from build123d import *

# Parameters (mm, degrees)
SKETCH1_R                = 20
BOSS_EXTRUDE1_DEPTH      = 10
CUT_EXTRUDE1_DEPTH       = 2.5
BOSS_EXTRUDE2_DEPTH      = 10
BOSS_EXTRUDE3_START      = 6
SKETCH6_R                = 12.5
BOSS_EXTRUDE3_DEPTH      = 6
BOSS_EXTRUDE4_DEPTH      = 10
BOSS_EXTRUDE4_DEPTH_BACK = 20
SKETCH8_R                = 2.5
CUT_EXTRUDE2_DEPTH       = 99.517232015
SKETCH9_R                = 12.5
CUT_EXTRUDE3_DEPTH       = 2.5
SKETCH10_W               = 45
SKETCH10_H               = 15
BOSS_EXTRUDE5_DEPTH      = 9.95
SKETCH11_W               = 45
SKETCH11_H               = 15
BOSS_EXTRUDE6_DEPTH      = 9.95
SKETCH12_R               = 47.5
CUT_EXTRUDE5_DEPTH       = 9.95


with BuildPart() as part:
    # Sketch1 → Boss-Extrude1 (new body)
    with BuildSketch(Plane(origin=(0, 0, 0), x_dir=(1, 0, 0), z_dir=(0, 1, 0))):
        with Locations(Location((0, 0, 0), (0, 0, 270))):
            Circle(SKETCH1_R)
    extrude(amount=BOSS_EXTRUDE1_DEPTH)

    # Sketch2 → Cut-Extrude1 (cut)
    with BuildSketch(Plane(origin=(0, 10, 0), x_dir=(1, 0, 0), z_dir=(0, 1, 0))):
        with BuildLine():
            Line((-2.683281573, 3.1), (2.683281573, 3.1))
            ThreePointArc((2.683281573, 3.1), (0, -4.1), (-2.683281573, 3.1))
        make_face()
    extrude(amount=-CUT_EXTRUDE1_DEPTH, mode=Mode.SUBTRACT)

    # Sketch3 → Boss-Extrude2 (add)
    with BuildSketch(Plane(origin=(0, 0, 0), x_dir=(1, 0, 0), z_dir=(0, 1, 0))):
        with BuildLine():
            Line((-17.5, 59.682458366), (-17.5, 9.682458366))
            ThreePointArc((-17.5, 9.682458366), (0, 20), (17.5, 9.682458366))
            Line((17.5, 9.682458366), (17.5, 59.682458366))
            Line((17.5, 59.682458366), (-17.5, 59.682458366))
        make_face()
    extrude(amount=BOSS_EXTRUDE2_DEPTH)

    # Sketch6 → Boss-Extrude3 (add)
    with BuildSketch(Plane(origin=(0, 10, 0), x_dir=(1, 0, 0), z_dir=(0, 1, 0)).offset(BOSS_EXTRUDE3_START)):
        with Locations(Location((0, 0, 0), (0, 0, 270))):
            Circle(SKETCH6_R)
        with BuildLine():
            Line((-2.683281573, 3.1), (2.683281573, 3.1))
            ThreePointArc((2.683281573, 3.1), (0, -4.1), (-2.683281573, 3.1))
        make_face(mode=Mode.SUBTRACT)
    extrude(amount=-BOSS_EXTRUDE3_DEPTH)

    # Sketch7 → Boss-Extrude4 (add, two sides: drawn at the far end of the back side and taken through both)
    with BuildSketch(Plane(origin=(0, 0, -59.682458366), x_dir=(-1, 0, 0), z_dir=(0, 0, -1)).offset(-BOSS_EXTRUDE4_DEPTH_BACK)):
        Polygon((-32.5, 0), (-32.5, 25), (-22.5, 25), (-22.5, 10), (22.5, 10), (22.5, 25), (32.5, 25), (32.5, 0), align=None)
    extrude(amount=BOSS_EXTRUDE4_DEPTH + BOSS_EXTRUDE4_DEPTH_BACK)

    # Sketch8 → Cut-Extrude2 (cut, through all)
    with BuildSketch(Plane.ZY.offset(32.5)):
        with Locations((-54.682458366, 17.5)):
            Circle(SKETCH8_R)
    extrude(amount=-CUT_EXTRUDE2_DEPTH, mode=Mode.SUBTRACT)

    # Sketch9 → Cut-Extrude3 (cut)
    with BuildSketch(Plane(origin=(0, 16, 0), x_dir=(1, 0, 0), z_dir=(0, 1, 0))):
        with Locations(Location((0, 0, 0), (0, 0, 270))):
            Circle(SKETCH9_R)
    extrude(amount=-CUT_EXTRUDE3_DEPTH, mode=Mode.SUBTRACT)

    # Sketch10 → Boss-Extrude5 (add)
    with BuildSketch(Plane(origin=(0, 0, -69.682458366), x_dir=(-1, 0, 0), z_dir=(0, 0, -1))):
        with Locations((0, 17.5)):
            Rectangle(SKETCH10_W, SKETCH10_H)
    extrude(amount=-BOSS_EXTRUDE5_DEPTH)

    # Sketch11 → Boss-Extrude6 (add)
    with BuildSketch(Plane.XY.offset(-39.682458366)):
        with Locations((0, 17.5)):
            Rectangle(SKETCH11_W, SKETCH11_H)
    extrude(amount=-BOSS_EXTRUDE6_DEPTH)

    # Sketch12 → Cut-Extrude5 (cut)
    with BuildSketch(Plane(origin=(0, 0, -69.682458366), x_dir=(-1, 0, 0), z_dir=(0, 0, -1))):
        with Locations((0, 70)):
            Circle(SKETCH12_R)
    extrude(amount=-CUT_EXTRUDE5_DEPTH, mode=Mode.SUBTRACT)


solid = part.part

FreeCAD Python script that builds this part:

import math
import FreeCAD as App
import Part
import Sketcher
Q = App.Units.Quantity


def add_polygon(sketch, points):
    """Adds a closed chain of lines whose ends are joined by coincident constraints."""
    first, n = sketch.GeometryCount, len(points)
    for a, b in zip(points, points[1:] + points[:1]):
        sketch.addGeometry(Part.LineSegment(App.Vector(*a, 0), App.Vector(*b, 0)), False)
    for i in range(n):
        sketch.addConstraint(Sketcher.Constraint("Coincident", first + i, 2, first + (i + 1) % n, 1))

doc = App.newDocument("Part")
body = doc.addObject("PartDesign::Body", "Body")

# Sketch on XZ plane
sketch1 = body.newObject("Sketcher::SketchObject", "Sketch")
sketch1.AttachmentSupport = (doc.getObject("XZ_Plane"), [""])
sketch1.MapMode = "FlatFace"
sketch1.addGeometry(Part.Circle(App.Vector(0, 0, 0), App.Vector(0, 0, 1), 20), False)
sketch1.addConstraint(Sketcher.Constraint("Coincident", 0, 3, -1, 1))
sketch1.addConstraint(Sketcher.Constraint("Diameter", 0, Q("40 mm")))
pad1 = body.newObject("PartDesign::Pad", "Pad")
pad1.Profile = sketch1
pad1.Length = 10
pad1.Reversed = True

# Sketch on XZ plane
sketch2 = body.newObject("Sketcher::SketchObject", "Sketch001")
sketch2.AttachmentSupport = (doc.getObject("XZ_Plane"), [""])
sketch2.MapMode = "FlatFace"
sketch2.AttachmentOffset = App.Placement(App.Vector(0, 0, -10), App.Rotation())
sketch2.addGeometry(Part.LineSegment(App.Vector(2.683282, -3.1, 0), App.Vector(-2.683282, -3.1, 0)), False)
sketch2.addGeometry(Part.ArcOfCircle(Part.Circle(App.Vector(0, 0, 0), App.Vector(0, 0, 1), 4.1), math.radians(-49.121365), math.radians(229.121365)), False)
sketch2.addConstraint(Sketcher.Constraint("Coincident", 0, 1, 1, 1))
sketch2.addConstraint(Sketcher.Constraint("Coincident", 1, 2, 0, 2))
sketch2.addConstraint(Sketcher.Constraint("Horizontal", 0))
sketch2.addConstraint(Sketcher.Constraint("Coincident", 1, 3, -1, 1))
sketch2.addConstraint(Sketcher.Constraint("Radius", 1, Q("4.1 mm")))
sketch2.addConstraint(Sketcher.Constraint("DistanceY", 0, 1, -1, 1, Q("3.1 mm")))
pocket1 = body.newObject("PartDesign::Pocket", "Pocket")
pocket1.Profile = sketch2
pocket1.Length = 2.5
pocket1.Reversed = True

# Sketch on XZ plane
sketch3 = body.newObject("Sketcher::SketchObject", "Sketch002")
sketch3.AttachmentSupport = (doc.getObject("XZ_Plane"), [""])
sketch3.MapMode = "FlatFace"
sketch3.addGeometry(Part.LineSegment(App.Vector(-17.5, -59.682458, 0), App.Vector(-17.5, -9.682458, 0)), False)
sketch3.addGeometry(Part.ArcOfCircle(Part.Circle(App.Vector(0, 0, 0), App.Vector(0, 0, 1), 20), math.radians(-151.044976), math.radians(-28.955024)), False)
sketch3.addGeometry(Part.LineSegment(App.Vector(17.5, -9.682458, 0), App.Vector(17.5, -59.682458, 0)), False)
sketch3.addGeometry(Part.LineSegment(App.Vector(17.5, -59.682458, 0), App.Vector(-17.5, -59.682458, 0)), False)
sketch3.addConstraint(Sketcher.Constraint("Coincident", 0, 2, 1, 1))
sketch3.addConstraint(Sketcher.Constraint("Coincident", 1, 2, 2, 1))
sketch3.addConstraint(Sketcher.Constraint("Coincident", 2, 2, 3, 1))
sketch3.addConstraint(Sketcher.Constraint("Coincident", 3, 2, 0, 1))
sketch3.addConstraint(Sketcher.Constraint("Vertical", 0))
sketch3.addConstraint(Sketcher.Constraint("Vertical", 2))
sketch3.addConstraint(Sketcher.Constraint("Horizontal", 3))
sketch3.addConstraint(Sketcher.Constraint("Coincident", 1, 3, -1, 1))
sketch3.addConstraint(Sketcher.Constraint("Horizontal", 0, 2, 1, 2))
sketch3.addConstraint(Sketcher.Constraint("Radius", 1, Q("20 mm")))
sketch3.addConstraint(Sketcher.Constraint("DistanceX", 3, 2, 3, 1, Q("35 mm")))
sketch3.addConstraint(Sketcher.Constraint("DistanceY", 0, 1, 0, 2, Q("50 mm")))
pad2 = body.newObject("PartDesign::Pad", "Pad001")
pad2.Profile = sketch3
pad2.Length = 10
pad2.Reversed = True

# Sketch on XZ plane
sketch4 = body.newObject("Sketcher::SketchObject", "Sketch003")
sketch4.AttachmentSupport = (doc.getObject("XZ_Plane"), [""])
sketch4.MapMode = "FlatFace"
sketch4.AttachmentOffset = App.Placement(App.Vector(0, 0, -16), App.Rotation())
sketch4.addGeometry(Part.Circle(App.Vector(0, 0, 0), App.Vector(0, 0, 1), 12.5), False)
sketch4.addGeometry(Part.ArcOfCircle(Part.Circle(App.Vector(0, 0, 0), App.Vector(0, 0, 1), 4.1), math.radians(-49.121365), math.radians(229.121365)), False)
sketch4.addGeometry(Part.LineSegment(App.Vector(-2.683282, -3.1, 0), App.Vector(2.683282, -3.1, 0)), False)
sketch4.addConstraint(Sketcher.Constraint("Coincident", 1, 1, 2, 2))
sketch4.addConstraint(Sketcher.Constraint("Coincident", 2, 1, 1, 2))
sketch4.addConstraint(Sketcher.Constraint("Horizontal", 2))
sketch4.addConstraint(Sketcher.Constraint("Coincident", 0, 3, -1, 1))
sketch4.addConstraint(Sketcher.Constraint("Coincident", 1, 3, -1, 1))
sketch4.addConstraint(Sketcher.Constraint("Diameter", 0, Q("25 mm")))
sketch4.addConstraint(Sketcher.Constraint("Radius", 1, Q("4.1 mm")))
sketch4.addConstraint(Sketcher.Constraint("DistanceY", 1, 1, -1, 1, Q("3.1 mm")))
pad3 = body.newObject("PartDesign::Pad", "Pad002")
pad3.Profile = sketch4
pad3.Length = 6

# Sketch on XY plane
sketch5 = body.newObject("Sketcher::SketchObject", "Sketch004")
sketch5.AttachmentSupport = (doc.getObject("XY_Plane"), [""])
sketch5.MapMode = "FlatFace"
sketch5.AttachmentOffset = App.Placement(App.Vector(0, 0, -59.682458), App.Rotation())
add_polygon(sketch5, [(32.5, 25), (32.5, 0), (-32.5, 0), (-32.5, 25), (-22.5, 25), (-22.5, 10), (22.5, 10), (22.5, 25)])  # lines 0-7
sketch5.addConstraint(Sketcher.Constraint("Vertical", 0))
sketch5.addConstraint(Sketcher.Constraint("Horizontal", 1))
sketch5.addConstraint(Sketcher.Constraint("Vertical", 2))
sketch5.addConstraint(Sketcher.Constraint("Horizontal", 3))
sketch5.addConstraint(Sketcher.Constraint("Vertical", 4))
sketch5.addConstraint(Sketcher.Constraint("Horizontal", 5))
sketch5.addConstraint(Sketcher.Constraint("Vertical", 6))
sketch5.addConstraint(Sketcher.Constraint("Horizontal", 7))
sketch5.addConstraint(Sketcher.Constraint("Symmetric", 0, 2, 1, 2, -1, 1))
sketch5.addConstraint(Sketcher.Constraint("Symmetric", 3, 2, 6, 2, -2))
sketch5.addConstraint(Sketcher.Constraint("DistanceX", 1, 2, 1, 1, Q("65 mm")))
sketch5.addConstraint(Sketcher.Constraint("DistanceX", 3, 1, 3, 2, Q("10 mm")))
sketch5.addConstraint(Sketcher.Constraint("DistanceY", 0, 2, 0, 1, Q("25 mm")))
sketch5.addConstraint(Sketcher.Constraint("DistanceY", 4, 2, 4, 1, Q("15 mm")))
pad4 = body.newObject("PartDesign::Pad", "Pad003")
pad4.Profile = sketch5
pad4.Type = "TwoLengths"
pad4.Length = 10
pad4.Length2 = 20
pad4.Reversed = True

# Sketch on YZ plane
sketch6 = body.newObject("Sketcher::SketchObject", "Sketch005")
sketch6.AttachmentSupport = (doc.getObject("YZ_Plane"), [""])
sketch6.MapMode = "FlatFace"
sketch6.AttachmentOffset = App.Placement(App.Vector(0, 0, -32.5), App.Rotation())
sketch6.addGeometry(Part.Circle(App.Vector(17.5, -54.682458, 0), App.Vector(0, 0, 1), 2.5), False)
sketch6.addConstraint(Sketcher.Constraint("Diameter", 0, Q("5 mm")))
sketch6.addConstraint(Sketcher.Constraint("DistanceX", -1, 1, 0, 3, Q("17.5 mm")))
sketch6.addConstraint(Sketcher.Constraint("DistanceY", 0, 3, -1, 1, Q("54.682458 mm")))
pocket2 = body.newObject("PartDesign::Pocket", "Pocket001")
pocket2.Profile = sketch6
pocket2.Type = "ThroughAll"
pocket2.Reversed = True

# Sketch on XZ plane
sketch7 = body.newObject("Sketcher::SketchObject", "Sketch006")
sketch7.AttachmentSupport = (doc.getObject("XZ_Plane"), [""])
sketch7.MapMode = "FlatFace"
sketch7.AttachmentOffset = App.Placement(App.Vector(0, 0, -16), App.Rotation())
sketch7.addGeometry(Part.Circle(App.Vector(0, 0, 0), App.Vector(0, 0, 1), 12.5), False)
sketch7.addConstraint(Sketcher.Constraint("Coincident", 0, 3, -1, 1))
sketch7.addConstraint(Sketcher.Constraint("Diameter", 0, Q("25 mm")))
pocket3 = body.newObject("PartDesign::Pocket", "Pocket002")
pocket3.Profile = sketch7
pocket3.Length = 2.5
pocket3.Reversed = True

# Sketch on XY plane
sketch8 = body.newObject("Sketcher::SketchObject", "Sketch007")
sketch8.AttachmentSupport = (doc.getObject("XY_Plane"), [""])
sketch8.MapMode = "FlatFace"
sketch8.AttachmentOffset = App.Placement(App.Vector(0, 0, -69.682458), App.Rotation())
add_polygon(sketch8, [(22.5, 25), (22.5, 10), (-22.5, 10), (-22.5, 25)])  # lines 0-3
sketch8.addConstraint(Sketcher.Constraint("Vertical", 0))
sketch8.addConstraint(Sketcher.Constraint("Horizontal", 1))
sketch8.addConstraint(Sketcher.Constraint("Vertical", 2))
sketch8.addConstraint(Sketcher.Constraint("Horizontal", 3))
sketch8.addConstraint(Sketcher.Constraint("DistanceX", 1, 2, 1, 1, Q("45 mm")))
sketch8.addConstraint(Sketcher.Constraint("DistanceY", 0, 2, 0, 1, Q("15 mm")))
sketch8.addConstraint(Sketcher.Constraint("DistanceY", -1, 1, 0, 2, Q("10 mm")))
sketch8.addConstraint(Sketcher.Constraint("DistanceX", -1, 1, 0, 2, Q("22.5 mm")))
pad5 = body.newObject("PartDesign::Pad", "Pad004")
pad5.Profile = sketch8
pad5.Length = 9.95

# Sketch on XY plane
sketch9 = body.newObject("Sketcher::SketchObject", "Sketch008")
sketch9.AttachmentSupport = (doc.getObject("XY_Plane"), [""])
sketch9.MapMode = "FlatFace"
sketch9.AttachmentOffset = App.Placement(App.Vector(0, 0, -39.682458), App.Rotation())
add_polygon(sketch9, [(-22.5, 25), (-22.5, 10), (22.5, 10), (22.5, 25)])  # lines 0-3
sketch9.addConstraint(Sketcher.Constraint("Vertical", 0))
sketch9.addConstraint(Sketcher.Constraint("Horizontal", 1))
sketch9.addConstraint(Sketcher.Constraint("Vertical", 2))
sketch9.addConstraint(Sketcher.Constraint("Horizontal", 3))
sketch9.addConstraint(Sketcher.Constraint("DistanceX", 1, 1, 1, 2, Q("45 mm")))
sketch9.addConstraint(Sketcher.Constraint("DistanceY", 0, 2, 0, 1, Q("15 mm")))
sketch9.addConstraint(Sketcher.Constraint("DistanceY", -1, 1, 0, 2, Q("10 mm")))
sketch9.addConstraint(Sketcher.Constraint("DistanceX", 0, 2, -1, 1, Q("22.5 mm")))
pad6 = body.newObject("PartDesign::Pad", "Pad005")
pad6.Profile = sketch9
pad6.Length = 9.95
pad6.Reversed = True

# Sketch on XY plane
sketch10 = body.newObject("Sketcher::SketchObject", "Sketch009")
sketch10.AttachmentSupport = (doc.getObject("XY_Plane"), [""])
sketch10.MapMode = "FlatFace"
sketch10.AttachmentOffset = App.Placement(App.Vector(0, 0, -69.682458), App.Rotation())
sketch10.addGeometry(Part.Circle(App.Vector(0, 70, 0), App.Vector(0, 0, 1), 47.5), False)
sketch10.addConstraint(Sketcher.Constraint("PointOnObject", 0, 3, -2))
sketch10.addConstraint(Sketcher.Constraint("Diameter", 0, Q("95 mm")))
sketch10.addConstraint(Sketcher.Constraint("DistanceY", -1, 1, 0, 3, Q("70 mm")))
pocket4 = body.newObject("PartDesign::Pocket", "Pocket003")
pocket4.Profile = sketch10
pocket4.Length = 9.95
pocket4.Reversed = True

doc.recompute()
